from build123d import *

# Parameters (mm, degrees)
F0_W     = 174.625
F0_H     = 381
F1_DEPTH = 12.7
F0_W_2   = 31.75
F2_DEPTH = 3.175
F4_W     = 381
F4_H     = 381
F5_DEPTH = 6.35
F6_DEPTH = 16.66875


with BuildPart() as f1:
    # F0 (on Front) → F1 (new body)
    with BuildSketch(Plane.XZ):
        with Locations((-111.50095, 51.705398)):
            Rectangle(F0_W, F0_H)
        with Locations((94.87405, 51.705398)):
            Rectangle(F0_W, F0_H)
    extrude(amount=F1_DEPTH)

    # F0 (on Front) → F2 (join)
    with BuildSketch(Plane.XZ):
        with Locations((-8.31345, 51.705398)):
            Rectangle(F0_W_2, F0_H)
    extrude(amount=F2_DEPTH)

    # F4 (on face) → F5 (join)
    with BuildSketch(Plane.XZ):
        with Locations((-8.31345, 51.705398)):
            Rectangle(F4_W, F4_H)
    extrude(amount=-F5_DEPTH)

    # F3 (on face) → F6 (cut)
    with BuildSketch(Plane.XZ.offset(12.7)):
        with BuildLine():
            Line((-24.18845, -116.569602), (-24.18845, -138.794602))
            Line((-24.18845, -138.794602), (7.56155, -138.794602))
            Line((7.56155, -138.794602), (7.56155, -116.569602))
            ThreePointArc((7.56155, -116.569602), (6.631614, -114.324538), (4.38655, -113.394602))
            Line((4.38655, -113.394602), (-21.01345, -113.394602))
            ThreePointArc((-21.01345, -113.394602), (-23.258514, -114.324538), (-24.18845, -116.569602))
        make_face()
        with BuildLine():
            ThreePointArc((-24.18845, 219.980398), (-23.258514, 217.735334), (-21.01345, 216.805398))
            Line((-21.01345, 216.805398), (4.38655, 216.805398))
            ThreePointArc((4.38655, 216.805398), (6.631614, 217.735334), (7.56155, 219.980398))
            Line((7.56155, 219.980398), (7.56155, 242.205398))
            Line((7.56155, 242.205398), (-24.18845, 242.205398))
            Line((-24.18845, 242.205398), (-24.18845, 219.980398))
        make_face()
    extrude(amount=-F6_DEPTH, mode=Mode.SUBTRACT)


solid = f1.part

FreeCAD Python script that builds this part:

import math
import FreeCAD as App
import Part
import Sketcher
from FreeCAD import Vector
Q = App.Units.Quantity

doc = App.newDocument("Part")
params = doc.addObject("Spreadsheet::Sheet", "Params")
for row, (alias, value) in enumerate([
    ("sketch1_height", "15 in"),
    ("sketch1_width", "6.875 in"),
    ("pad1_length", "0.5 in"),
    ("sketch2_height", "15 in"),
    ("sketch2_width", "1.25 in"),
    ("pad2_length", "0.125 in"),
    ("sketch3_width", "15 in"),
    ("pad3_length", "0.25 in"),
    ("sketch4_width", "1 in"),
    ("sketch4_radius", "0.125 in"),
    ("pocket1_length", "0.65625 in"),
], start=1):
    params.set(f"A{row}", alias)
    params.set(f"B{row}", "=" + value)
    params.setAlias(f"B{row}", alias)

body = doc.addObject("PartDesign::Body", "Body")
body.AllowCompound = True

# Sketch on XZ plane
sketch1 = doc.addObject("Sketcher::SketchObject", "Sketch")
body.addObject(sketch1)
sketch1.AttachmentSupport = (doc.XZ_Plane, [""])
sketch1.MapMode = "FlatFace"
sketch1.addGeometry(Part.LineSegment(Vector(-198.81345, 242.205398, 0), Vector(-198.81345, -138.794602, 0)), False)
sketch1.addGeometry(Part.LineSegment(Vector(-198.81345, -138.794602, 0), Vector(-24.18845, -138.794602, 0)), False)
sketch1.addGeometry(Part.LineSegment(Vector(-24.18845, -138.794602, 0), Vector(-24.18845, 242.205398, 0)), False)
sketch1.addGeometry(Part.LineSegment(Vector(-24.18845, 242.205398, 0), Vector(-198.81345, 242.205398, 0)), False)
sketch1.addGeometry(Part.LineSegment(Vector(7.56155, 242.205398, 0), Vector(7.56155, -138.794602, 0)), False)
sketch1.addGeometry(Part.LineSegment(Vector(7.56155, -138.794602, 0), Vector(182.18655, -138.794602, 0)), False)
sketch1.addGeometry(Part.LineSegment(Vector(182.18655, -138.794602, 0), Vector(182.18655, 242.205398, 0)), False)
sketch1.addGeometry(Part.LineSegment(Vector(182.18655, 242.205398, 0), Vector(7.56155, 242.205398, 0)), False)
sketch1.addConstraint(Sketcher.Constraint("Coincident", 0, 2, 1, 1))
sketch1.addConstraint(Sketcher.Constraint("Coincident", 1, 2, 2, 1))
sketch1.addConstraint(Sketcher.Constraint("Coincident", 2, 2, 3, 1))
sketch1.addConstraint(Sketcher.Constraint("Coincident", 3, 2, 0, 1))
sketch1.addConstraint(Sketcher.Constraint("Coincident", 4, 2, 5, 1))
sketch1.addConstraint(Sketcher.Constraint("Coincident", 5, 2, 6, 1))
sketch1.addConstraint(Sketcher.Constraint("Coincident", 6, 2, 7, 1))
sketch1.addConstraint(Sketcher.Constraint("Coincident", 7, 2, 4, 1))
sketch1.addConstraint(Sketcher.Constraint("Vertical", 0))
sketch1.addConstraint(Sketcher.Constraint("Horizontal", 1))
sketch1.addConstraint(Sketcher.Constraint("Vertical", 2))
sketch1.addConstraint(Sketcher.Constraint("Horizontal", 3))
sketch1.addConstraint(Sketcher.Constraint("Vertical", 4))
sketch1.addConstraint(Sketcher.Constraint("Horizontal", 5))
sketch1.addConstraint(Sketcher.Constraint("Vertical", 6))
sketch1.addConstraint(Sketcher.Constraint("Horizontal", 7))
sketch1.addConstraint(Sketcher.Constraint("Horizontal", 1, 2, 4, 2))
sketch1.addConstraint(Sketcher.Constraint("Horizontal", 3, 2, 6, 2))
sketch1.addConstraint(Sketcher.Constraint("Equal", 3, 5))
sketch1.addConstraint(Sketcher.Constraint("DistanceY", 0, 2, 0, 1, Q("15 in")))
sketch1.addConstraint(Sketcher.Constraint("DistanceX", 0, 2, 5, 2, Q("15 in")))
sketch1.addConstraint(Sketcher.Constraint("DistanceX", 1, 1, 1, 2, Q("6.875 in")))
sketch1.addConstraint(Sketcher.Constraint("DistanceY", 0, 2, -1, 1, Q("138.794602 mm")))
sketch1.addConstraint(Sketcher.Constraint("DistanceX", 0, 2, -1, 1, Q("198.81345 mm")))
sketch1.setExpression("Constraints[19]", "Params.sketch1_height")
sketch1.setExpression("Constraints[21]", "Params.sketch1_width")
pad1 = doc.addObject("PartDesign::Pad", "Pad")
body.addObject(pad1)
pad1.Profile = sketch1
pad1.setExpression("Length", "Params.pad1_length")

# Sketch on XZ plane
sketch2 = doc.addObject("Sketcher::SketchObject", "Sketch001")
body.addObject(sketch2)
sketch2.AttachmentSupport = (doc.XZ_Plane, [""])
sketch2.MapMode = "FlatFace"
sketch2.addGeometry(Part.LineSegment(Vector(-24.18845, 242.205398, 0), Vector(-24.18845, -138.794602, 0)), False)
sketch2.addGeometry(Part.LineSegment(Vector(-24.18845, -138.794602, 0), Vector(7.56155, -138.794602, 0)), False)
sketch2.addGeometry(Part.LineSegment(Vector(7.56155, -138.794602, 0), Vector(7.56155, 242.205398, 0)), False)
sketch2.addGeometry(Part.LineSegment(Vector(7.56155, 242.205398, 0), Vector(-24.18845, 242.205398, 0)), False)
sketch2.addConstraint(Sketcher.Constraint("Coincident", 0, 2, 1, 1))
sketch2.addConstraint(Sketcher.Constraint("Coincident", 1, 2, 2, 1))
sketch2.addConstraint(Sketcher.Constraint("Coincident", 2, 2, 3, 1))
sketch2.addConstraint(Sketcher.Constraint("Coincident", 3, 2, 0, 1))
sketch2.addConstraint(Sketcher.Constraint("Vertical", 0))
sketch2.addConstraint(Sketcher.Constraint("Horizontal", 1))
sketch2.addConstraint(Sketcher.Constraint("Vertical", 2))
sketch2.addConstraint(Sketcher.Constraint("Horizontal", 3))
sketch2.addConstraint(Sketcher.Constraint("DistanceY", 0, 2, 0, 1, Q("15 in")))
sketch2.addConstraint(Sketcher.Constraint("DistanceX", 1, 1, 1, 2, Q("1.25 in")))
sketch2.addConstraint(Sketcher.Constraint("DistanceY", 0, 2, -1, 1, Q("138.794602 mm")))
sketch2.addConstraint(Sketcher.Constraint("DistanceX", 0, 2, -1, 1, Q("24.18845 mm")))
sketch2.setExpression("Constraints[8]", "Params.sketch2_height")
sketch2.setExpression("Constraints[9]", "Params.sketch2_width")
pad2 = doc.addObject("PartDesign::Pad", "Pad001")
body.addObject(pad2)
pad2.Profile = sketch2
pad2.setExpression("Length", "Params.pad2_length")

# Sketch on XZ plane
sketch3 = doc.addObject("Sketcher::SketchObject", "Sketch002")
body.addObject(sketch3)
sketch3.AttachmentSupport = (doc.XZ_Plane, [""])
sketch3.MapMode = "FlatFace"
sketch3.addGeometry(Part.LineSegment(Vector(-198.81345, 242.205398, 0), Vector(-198.81345, -138.794602, 0)), False)
sketch3.addGeometry(Part.LineSegment(Vector(-198.81345, -138.794602, 0), Vector(182.18655, -138.794602, 0)), False)
sketch3.addGeometry(Part.LineSegment(Vector(182.18655, -138.794602, 0), Vector(182.18655, 242.205398, 0)), False)
sketch3.addGeometry(Part.LineSegment(Vector(182.18655, 242.205398, 0), Vector(-198.81345, 242.205398, 0)), False)
sketch3.addConstraint(Sketcher.Constraint("Coincident", 0, 2, 1, 1))
sketch3.addConstraint(Sketcher.Constraint("Coincident", 1, 2, 2, 1))
sketch3.addConstraint(Sketcher.Constraint("Coincident", 2, 2, 3, 1))
sketch3.addConstraint(Sketcher.Constraint("Coincident", 3, 2, 0, 1))
sketch3.addConstraint(Sketcher.Constraint("Vertical", 0))
sketch3.addConstraint(Sketcher.Constraint("Horizontal", 1))
sketch3.addConstraint(Sketcher.Constraint("Vertical", 2))
sketch3.addConstraint(Sketcher.Constraint("Horizontal", 3))
sketch3.addConstraint(Sketcher.Constraint("Equal", 3, 0))
sketch3.addConstraint(Sketcher.Constraint("DistanceX", 1, 1, 1, 2, Q("15 in")))
sketch3.addConstraint(Sketcher.Constraint("DistanceY", 0, 2, -1, 1, Q("138.794602 mm")))
sketch3.addConstraint(Sketcher.Constraint("DistanceX", 0, 2, -1, 1, Q("198.81345 mm")))
sketch3.setExpression("Constraints[9]", "Params.sketch3_width")
pad3 = doc.addObject("PartDesign::Pad", "Pad002")
body.addObject(pad3)
pad3.Profile = sketch3
pad3.setExpression("Length", "Params.pad3_length")
pad3.Reversed = True

# Sketch on XZ plane
sketch4 = doc.addObject("Sketcher::SketchObject", "Sketch003")
body.addObject(sketch4)
sketch4.AttachmentSupport = (doc.XZ_Plane, [""])
sketch4.MapMode = "FlatFace"
sketch4.AttachmentOffset = App.Placement(Vector(0, 0, 0.5 * 25.4), App.Rotation())
sketch4.addGeometry(Part.LineSegment(Vector(-24.18845, -116.569602, 0), Vector(-24.18845, -138.794602, 0)), False)
sketch4.addGeometry(Part.LineSegment(Vector(-24.18845, -138.794602, 0), Vector(7.56155, -138.794602, 0)), False)
sketch4.addGeometry(Part.LineSegment(Vector(7.56155, -138.794602, 0), Vector(7.56155, -116.569602, 0)), False)
sketch4.addGeometry(Part.ArcOfCircle(Part.Circle(Vector(4.38655, -116.569602, 0), Vector(0, 0, 1), 3.175), math.radians(0.000002), math.radians(89.999998)), False)
sketch4.addGeometry(Part.LineSegment(Vector(4.38655, -113.394602, 0), Vector(-21.01345, -113.394602, 0)), False)
sketch4.addGeometry(Part.ArcOfCircle(Part.Circle(Vector(-21.01345, -116.569602, 0), Vector(0, 0, 1), 3.175), math.radians(90.000002), math.radians(179.999998)), False)
sketch4.addGeometry(Part.ArcOfCircle(Part.Circle(Vector(-21.01345, 219.980398, 0), Vector(0, 0, 1), 3.175), math.radians(-179.999998), math.radians(-90.000002)), False)
sketch4.addGeometry(Part.LineSegment(Vector(-21.01345, 216.805398, 0), Vector(4.38655, 216.805398, 0)), False)
sketch4.addGeometry(Part.ArcOfCircle(Part.Circle(Vector(4.38655, 219.980398, 0), Vector(0, 0, 1), 3.175), math.radians(-89.999998), math.radians(-0.000002)), False)
sketch4.addGeometry(Part.LineSegment(Vector(7.56155, 219.980398, 0), Vector(7.56155, 242.205398, 0)), False)
sketch4.addGeometry(Part.LineSegment(Vector(7.56155, 242.205398, 0), Vector(-24.18845, 242.205398, 0)), False)
sketch4.addGeometry(Part.LineSegment(Vector(-24.18845, 242.205398, 0), Vector(-24.18845, 219.980398, 0)), False)
sketch4.addConstraint(Sketcher.Constraint("Coincident", 0, 2, 1, 1))
sketch4.addConstraint(Sketcher.Constraint("Coincident", 1, 2, 2, 1))
sketch4.addConstraint(Sketcher.Constraint("Tangent", 2, 2, 3, 1))
sketch4.addConstraint(Sketcher.Constraint("Tangent", 3, 2, 4, 1))
sketch4.addConstraint(Sketcher.Constraint("Tangent", 4, 2, 5, 1))
sketch4.addConstraint(Sketcher.Constraint("Tangent", 5, 2, 0, 1))
sketch4.addConstraint(Sketcher.Constraint("Tangent", 6, 2, 7, 1))
sketch4.addConstraint(Sketcher.Constraint("Tangent", 7, 2, 8, 1))
sketch4.addConstraint(Sketcher.Constraint("Tangent", 8, 2, 9, 1))
sketch4.addConstraint(Sketcher.Constraint("Coincident", 9, 2, 10, 1))
sketch4.addConstraint(Sketcher.Constraint("Coincident", 10, 2, 11, 1))
sketch4.addConstraint(Sketcher.Constraint("Tangent", 11, 2, 6, 1))
sketch4.addConstraint(Sketcher.Constraint("Vertical", 0))
sketch4.addConstraint(Sketcher.Constraint("Horizontal", 1))
sketch4.addConstraint(Sketcher.Constraint("Vertical", 2))
sketch4.addConstraint(Sketcher.Constraint("Horizontal", 4))
sketch4.addConstraint(Sketcher.Constraint("Horizontal", 7))
sketch4.addConstraint(Sketcher.Constraint("Vertical", 9))
sketch4.addConstraint(Sketcher.Constraint("Horizontal", 10))
sketch4.addConstraint(Sketcher.Constraint("Vertical", 11))
sketch4.addConstraint(Sketcher.Constraint("Equal", 3, 5))
sketch4.addConstraint(Sketcher.Constraint("Equal", 5, 6))
sketch4.addConstraint(Sketcher.Constraint("Equal", 6, 8))
sketch4.addConstraint(Sketcher.Constraint("Vertical", 5, 3, 6, 3))
sketch4.addConstraint(Sketcher.Constraint("Vertical", 3, 3, 8, 3))
sketch4.addConstraint(Sketcher.Constraint("Equal", 2, 9))
sketch4.addConstraint(Sketcher.Constraint("DistanceX", 4, 2, 4, 1, Q("1 in")))
sketch4.addConstraint(Sketcher.Constraint("Radius", 3, Q("0.125 in")))
sketch4.addConstraint(Sketcher.Constraint("DistanceY", 1, 2, 3, 2, Q("1 in")))
sketch4.addConstraint(Sketcher.Constraint("DistanceY", 4, 2, 6, 2, Q("13 in")))
sketch4.addConstraint(Sketcher.Constraint("DistanceY", -1, 1, 6, 3, Q("219.980398 mm")))
sketch4.addConstraint(Sketcher.Constraint("DistanceX", -1, 1, 3, 3, Q("4.38655 mm")))
sketch4.setExpression("Constraints[26]", "Params.sketch4_width")
sketch4.setExpression("Constraints[27]", "Params.sketch4_radius")
pocket1 = doc.addObject("PartDesign::Pocket", "Pocket")
body.addObject(pocket1)
pocket1.Profile = sketch4
pocket1.setExpression("Length", "Params.pocket1_length")

doc.recompute()
